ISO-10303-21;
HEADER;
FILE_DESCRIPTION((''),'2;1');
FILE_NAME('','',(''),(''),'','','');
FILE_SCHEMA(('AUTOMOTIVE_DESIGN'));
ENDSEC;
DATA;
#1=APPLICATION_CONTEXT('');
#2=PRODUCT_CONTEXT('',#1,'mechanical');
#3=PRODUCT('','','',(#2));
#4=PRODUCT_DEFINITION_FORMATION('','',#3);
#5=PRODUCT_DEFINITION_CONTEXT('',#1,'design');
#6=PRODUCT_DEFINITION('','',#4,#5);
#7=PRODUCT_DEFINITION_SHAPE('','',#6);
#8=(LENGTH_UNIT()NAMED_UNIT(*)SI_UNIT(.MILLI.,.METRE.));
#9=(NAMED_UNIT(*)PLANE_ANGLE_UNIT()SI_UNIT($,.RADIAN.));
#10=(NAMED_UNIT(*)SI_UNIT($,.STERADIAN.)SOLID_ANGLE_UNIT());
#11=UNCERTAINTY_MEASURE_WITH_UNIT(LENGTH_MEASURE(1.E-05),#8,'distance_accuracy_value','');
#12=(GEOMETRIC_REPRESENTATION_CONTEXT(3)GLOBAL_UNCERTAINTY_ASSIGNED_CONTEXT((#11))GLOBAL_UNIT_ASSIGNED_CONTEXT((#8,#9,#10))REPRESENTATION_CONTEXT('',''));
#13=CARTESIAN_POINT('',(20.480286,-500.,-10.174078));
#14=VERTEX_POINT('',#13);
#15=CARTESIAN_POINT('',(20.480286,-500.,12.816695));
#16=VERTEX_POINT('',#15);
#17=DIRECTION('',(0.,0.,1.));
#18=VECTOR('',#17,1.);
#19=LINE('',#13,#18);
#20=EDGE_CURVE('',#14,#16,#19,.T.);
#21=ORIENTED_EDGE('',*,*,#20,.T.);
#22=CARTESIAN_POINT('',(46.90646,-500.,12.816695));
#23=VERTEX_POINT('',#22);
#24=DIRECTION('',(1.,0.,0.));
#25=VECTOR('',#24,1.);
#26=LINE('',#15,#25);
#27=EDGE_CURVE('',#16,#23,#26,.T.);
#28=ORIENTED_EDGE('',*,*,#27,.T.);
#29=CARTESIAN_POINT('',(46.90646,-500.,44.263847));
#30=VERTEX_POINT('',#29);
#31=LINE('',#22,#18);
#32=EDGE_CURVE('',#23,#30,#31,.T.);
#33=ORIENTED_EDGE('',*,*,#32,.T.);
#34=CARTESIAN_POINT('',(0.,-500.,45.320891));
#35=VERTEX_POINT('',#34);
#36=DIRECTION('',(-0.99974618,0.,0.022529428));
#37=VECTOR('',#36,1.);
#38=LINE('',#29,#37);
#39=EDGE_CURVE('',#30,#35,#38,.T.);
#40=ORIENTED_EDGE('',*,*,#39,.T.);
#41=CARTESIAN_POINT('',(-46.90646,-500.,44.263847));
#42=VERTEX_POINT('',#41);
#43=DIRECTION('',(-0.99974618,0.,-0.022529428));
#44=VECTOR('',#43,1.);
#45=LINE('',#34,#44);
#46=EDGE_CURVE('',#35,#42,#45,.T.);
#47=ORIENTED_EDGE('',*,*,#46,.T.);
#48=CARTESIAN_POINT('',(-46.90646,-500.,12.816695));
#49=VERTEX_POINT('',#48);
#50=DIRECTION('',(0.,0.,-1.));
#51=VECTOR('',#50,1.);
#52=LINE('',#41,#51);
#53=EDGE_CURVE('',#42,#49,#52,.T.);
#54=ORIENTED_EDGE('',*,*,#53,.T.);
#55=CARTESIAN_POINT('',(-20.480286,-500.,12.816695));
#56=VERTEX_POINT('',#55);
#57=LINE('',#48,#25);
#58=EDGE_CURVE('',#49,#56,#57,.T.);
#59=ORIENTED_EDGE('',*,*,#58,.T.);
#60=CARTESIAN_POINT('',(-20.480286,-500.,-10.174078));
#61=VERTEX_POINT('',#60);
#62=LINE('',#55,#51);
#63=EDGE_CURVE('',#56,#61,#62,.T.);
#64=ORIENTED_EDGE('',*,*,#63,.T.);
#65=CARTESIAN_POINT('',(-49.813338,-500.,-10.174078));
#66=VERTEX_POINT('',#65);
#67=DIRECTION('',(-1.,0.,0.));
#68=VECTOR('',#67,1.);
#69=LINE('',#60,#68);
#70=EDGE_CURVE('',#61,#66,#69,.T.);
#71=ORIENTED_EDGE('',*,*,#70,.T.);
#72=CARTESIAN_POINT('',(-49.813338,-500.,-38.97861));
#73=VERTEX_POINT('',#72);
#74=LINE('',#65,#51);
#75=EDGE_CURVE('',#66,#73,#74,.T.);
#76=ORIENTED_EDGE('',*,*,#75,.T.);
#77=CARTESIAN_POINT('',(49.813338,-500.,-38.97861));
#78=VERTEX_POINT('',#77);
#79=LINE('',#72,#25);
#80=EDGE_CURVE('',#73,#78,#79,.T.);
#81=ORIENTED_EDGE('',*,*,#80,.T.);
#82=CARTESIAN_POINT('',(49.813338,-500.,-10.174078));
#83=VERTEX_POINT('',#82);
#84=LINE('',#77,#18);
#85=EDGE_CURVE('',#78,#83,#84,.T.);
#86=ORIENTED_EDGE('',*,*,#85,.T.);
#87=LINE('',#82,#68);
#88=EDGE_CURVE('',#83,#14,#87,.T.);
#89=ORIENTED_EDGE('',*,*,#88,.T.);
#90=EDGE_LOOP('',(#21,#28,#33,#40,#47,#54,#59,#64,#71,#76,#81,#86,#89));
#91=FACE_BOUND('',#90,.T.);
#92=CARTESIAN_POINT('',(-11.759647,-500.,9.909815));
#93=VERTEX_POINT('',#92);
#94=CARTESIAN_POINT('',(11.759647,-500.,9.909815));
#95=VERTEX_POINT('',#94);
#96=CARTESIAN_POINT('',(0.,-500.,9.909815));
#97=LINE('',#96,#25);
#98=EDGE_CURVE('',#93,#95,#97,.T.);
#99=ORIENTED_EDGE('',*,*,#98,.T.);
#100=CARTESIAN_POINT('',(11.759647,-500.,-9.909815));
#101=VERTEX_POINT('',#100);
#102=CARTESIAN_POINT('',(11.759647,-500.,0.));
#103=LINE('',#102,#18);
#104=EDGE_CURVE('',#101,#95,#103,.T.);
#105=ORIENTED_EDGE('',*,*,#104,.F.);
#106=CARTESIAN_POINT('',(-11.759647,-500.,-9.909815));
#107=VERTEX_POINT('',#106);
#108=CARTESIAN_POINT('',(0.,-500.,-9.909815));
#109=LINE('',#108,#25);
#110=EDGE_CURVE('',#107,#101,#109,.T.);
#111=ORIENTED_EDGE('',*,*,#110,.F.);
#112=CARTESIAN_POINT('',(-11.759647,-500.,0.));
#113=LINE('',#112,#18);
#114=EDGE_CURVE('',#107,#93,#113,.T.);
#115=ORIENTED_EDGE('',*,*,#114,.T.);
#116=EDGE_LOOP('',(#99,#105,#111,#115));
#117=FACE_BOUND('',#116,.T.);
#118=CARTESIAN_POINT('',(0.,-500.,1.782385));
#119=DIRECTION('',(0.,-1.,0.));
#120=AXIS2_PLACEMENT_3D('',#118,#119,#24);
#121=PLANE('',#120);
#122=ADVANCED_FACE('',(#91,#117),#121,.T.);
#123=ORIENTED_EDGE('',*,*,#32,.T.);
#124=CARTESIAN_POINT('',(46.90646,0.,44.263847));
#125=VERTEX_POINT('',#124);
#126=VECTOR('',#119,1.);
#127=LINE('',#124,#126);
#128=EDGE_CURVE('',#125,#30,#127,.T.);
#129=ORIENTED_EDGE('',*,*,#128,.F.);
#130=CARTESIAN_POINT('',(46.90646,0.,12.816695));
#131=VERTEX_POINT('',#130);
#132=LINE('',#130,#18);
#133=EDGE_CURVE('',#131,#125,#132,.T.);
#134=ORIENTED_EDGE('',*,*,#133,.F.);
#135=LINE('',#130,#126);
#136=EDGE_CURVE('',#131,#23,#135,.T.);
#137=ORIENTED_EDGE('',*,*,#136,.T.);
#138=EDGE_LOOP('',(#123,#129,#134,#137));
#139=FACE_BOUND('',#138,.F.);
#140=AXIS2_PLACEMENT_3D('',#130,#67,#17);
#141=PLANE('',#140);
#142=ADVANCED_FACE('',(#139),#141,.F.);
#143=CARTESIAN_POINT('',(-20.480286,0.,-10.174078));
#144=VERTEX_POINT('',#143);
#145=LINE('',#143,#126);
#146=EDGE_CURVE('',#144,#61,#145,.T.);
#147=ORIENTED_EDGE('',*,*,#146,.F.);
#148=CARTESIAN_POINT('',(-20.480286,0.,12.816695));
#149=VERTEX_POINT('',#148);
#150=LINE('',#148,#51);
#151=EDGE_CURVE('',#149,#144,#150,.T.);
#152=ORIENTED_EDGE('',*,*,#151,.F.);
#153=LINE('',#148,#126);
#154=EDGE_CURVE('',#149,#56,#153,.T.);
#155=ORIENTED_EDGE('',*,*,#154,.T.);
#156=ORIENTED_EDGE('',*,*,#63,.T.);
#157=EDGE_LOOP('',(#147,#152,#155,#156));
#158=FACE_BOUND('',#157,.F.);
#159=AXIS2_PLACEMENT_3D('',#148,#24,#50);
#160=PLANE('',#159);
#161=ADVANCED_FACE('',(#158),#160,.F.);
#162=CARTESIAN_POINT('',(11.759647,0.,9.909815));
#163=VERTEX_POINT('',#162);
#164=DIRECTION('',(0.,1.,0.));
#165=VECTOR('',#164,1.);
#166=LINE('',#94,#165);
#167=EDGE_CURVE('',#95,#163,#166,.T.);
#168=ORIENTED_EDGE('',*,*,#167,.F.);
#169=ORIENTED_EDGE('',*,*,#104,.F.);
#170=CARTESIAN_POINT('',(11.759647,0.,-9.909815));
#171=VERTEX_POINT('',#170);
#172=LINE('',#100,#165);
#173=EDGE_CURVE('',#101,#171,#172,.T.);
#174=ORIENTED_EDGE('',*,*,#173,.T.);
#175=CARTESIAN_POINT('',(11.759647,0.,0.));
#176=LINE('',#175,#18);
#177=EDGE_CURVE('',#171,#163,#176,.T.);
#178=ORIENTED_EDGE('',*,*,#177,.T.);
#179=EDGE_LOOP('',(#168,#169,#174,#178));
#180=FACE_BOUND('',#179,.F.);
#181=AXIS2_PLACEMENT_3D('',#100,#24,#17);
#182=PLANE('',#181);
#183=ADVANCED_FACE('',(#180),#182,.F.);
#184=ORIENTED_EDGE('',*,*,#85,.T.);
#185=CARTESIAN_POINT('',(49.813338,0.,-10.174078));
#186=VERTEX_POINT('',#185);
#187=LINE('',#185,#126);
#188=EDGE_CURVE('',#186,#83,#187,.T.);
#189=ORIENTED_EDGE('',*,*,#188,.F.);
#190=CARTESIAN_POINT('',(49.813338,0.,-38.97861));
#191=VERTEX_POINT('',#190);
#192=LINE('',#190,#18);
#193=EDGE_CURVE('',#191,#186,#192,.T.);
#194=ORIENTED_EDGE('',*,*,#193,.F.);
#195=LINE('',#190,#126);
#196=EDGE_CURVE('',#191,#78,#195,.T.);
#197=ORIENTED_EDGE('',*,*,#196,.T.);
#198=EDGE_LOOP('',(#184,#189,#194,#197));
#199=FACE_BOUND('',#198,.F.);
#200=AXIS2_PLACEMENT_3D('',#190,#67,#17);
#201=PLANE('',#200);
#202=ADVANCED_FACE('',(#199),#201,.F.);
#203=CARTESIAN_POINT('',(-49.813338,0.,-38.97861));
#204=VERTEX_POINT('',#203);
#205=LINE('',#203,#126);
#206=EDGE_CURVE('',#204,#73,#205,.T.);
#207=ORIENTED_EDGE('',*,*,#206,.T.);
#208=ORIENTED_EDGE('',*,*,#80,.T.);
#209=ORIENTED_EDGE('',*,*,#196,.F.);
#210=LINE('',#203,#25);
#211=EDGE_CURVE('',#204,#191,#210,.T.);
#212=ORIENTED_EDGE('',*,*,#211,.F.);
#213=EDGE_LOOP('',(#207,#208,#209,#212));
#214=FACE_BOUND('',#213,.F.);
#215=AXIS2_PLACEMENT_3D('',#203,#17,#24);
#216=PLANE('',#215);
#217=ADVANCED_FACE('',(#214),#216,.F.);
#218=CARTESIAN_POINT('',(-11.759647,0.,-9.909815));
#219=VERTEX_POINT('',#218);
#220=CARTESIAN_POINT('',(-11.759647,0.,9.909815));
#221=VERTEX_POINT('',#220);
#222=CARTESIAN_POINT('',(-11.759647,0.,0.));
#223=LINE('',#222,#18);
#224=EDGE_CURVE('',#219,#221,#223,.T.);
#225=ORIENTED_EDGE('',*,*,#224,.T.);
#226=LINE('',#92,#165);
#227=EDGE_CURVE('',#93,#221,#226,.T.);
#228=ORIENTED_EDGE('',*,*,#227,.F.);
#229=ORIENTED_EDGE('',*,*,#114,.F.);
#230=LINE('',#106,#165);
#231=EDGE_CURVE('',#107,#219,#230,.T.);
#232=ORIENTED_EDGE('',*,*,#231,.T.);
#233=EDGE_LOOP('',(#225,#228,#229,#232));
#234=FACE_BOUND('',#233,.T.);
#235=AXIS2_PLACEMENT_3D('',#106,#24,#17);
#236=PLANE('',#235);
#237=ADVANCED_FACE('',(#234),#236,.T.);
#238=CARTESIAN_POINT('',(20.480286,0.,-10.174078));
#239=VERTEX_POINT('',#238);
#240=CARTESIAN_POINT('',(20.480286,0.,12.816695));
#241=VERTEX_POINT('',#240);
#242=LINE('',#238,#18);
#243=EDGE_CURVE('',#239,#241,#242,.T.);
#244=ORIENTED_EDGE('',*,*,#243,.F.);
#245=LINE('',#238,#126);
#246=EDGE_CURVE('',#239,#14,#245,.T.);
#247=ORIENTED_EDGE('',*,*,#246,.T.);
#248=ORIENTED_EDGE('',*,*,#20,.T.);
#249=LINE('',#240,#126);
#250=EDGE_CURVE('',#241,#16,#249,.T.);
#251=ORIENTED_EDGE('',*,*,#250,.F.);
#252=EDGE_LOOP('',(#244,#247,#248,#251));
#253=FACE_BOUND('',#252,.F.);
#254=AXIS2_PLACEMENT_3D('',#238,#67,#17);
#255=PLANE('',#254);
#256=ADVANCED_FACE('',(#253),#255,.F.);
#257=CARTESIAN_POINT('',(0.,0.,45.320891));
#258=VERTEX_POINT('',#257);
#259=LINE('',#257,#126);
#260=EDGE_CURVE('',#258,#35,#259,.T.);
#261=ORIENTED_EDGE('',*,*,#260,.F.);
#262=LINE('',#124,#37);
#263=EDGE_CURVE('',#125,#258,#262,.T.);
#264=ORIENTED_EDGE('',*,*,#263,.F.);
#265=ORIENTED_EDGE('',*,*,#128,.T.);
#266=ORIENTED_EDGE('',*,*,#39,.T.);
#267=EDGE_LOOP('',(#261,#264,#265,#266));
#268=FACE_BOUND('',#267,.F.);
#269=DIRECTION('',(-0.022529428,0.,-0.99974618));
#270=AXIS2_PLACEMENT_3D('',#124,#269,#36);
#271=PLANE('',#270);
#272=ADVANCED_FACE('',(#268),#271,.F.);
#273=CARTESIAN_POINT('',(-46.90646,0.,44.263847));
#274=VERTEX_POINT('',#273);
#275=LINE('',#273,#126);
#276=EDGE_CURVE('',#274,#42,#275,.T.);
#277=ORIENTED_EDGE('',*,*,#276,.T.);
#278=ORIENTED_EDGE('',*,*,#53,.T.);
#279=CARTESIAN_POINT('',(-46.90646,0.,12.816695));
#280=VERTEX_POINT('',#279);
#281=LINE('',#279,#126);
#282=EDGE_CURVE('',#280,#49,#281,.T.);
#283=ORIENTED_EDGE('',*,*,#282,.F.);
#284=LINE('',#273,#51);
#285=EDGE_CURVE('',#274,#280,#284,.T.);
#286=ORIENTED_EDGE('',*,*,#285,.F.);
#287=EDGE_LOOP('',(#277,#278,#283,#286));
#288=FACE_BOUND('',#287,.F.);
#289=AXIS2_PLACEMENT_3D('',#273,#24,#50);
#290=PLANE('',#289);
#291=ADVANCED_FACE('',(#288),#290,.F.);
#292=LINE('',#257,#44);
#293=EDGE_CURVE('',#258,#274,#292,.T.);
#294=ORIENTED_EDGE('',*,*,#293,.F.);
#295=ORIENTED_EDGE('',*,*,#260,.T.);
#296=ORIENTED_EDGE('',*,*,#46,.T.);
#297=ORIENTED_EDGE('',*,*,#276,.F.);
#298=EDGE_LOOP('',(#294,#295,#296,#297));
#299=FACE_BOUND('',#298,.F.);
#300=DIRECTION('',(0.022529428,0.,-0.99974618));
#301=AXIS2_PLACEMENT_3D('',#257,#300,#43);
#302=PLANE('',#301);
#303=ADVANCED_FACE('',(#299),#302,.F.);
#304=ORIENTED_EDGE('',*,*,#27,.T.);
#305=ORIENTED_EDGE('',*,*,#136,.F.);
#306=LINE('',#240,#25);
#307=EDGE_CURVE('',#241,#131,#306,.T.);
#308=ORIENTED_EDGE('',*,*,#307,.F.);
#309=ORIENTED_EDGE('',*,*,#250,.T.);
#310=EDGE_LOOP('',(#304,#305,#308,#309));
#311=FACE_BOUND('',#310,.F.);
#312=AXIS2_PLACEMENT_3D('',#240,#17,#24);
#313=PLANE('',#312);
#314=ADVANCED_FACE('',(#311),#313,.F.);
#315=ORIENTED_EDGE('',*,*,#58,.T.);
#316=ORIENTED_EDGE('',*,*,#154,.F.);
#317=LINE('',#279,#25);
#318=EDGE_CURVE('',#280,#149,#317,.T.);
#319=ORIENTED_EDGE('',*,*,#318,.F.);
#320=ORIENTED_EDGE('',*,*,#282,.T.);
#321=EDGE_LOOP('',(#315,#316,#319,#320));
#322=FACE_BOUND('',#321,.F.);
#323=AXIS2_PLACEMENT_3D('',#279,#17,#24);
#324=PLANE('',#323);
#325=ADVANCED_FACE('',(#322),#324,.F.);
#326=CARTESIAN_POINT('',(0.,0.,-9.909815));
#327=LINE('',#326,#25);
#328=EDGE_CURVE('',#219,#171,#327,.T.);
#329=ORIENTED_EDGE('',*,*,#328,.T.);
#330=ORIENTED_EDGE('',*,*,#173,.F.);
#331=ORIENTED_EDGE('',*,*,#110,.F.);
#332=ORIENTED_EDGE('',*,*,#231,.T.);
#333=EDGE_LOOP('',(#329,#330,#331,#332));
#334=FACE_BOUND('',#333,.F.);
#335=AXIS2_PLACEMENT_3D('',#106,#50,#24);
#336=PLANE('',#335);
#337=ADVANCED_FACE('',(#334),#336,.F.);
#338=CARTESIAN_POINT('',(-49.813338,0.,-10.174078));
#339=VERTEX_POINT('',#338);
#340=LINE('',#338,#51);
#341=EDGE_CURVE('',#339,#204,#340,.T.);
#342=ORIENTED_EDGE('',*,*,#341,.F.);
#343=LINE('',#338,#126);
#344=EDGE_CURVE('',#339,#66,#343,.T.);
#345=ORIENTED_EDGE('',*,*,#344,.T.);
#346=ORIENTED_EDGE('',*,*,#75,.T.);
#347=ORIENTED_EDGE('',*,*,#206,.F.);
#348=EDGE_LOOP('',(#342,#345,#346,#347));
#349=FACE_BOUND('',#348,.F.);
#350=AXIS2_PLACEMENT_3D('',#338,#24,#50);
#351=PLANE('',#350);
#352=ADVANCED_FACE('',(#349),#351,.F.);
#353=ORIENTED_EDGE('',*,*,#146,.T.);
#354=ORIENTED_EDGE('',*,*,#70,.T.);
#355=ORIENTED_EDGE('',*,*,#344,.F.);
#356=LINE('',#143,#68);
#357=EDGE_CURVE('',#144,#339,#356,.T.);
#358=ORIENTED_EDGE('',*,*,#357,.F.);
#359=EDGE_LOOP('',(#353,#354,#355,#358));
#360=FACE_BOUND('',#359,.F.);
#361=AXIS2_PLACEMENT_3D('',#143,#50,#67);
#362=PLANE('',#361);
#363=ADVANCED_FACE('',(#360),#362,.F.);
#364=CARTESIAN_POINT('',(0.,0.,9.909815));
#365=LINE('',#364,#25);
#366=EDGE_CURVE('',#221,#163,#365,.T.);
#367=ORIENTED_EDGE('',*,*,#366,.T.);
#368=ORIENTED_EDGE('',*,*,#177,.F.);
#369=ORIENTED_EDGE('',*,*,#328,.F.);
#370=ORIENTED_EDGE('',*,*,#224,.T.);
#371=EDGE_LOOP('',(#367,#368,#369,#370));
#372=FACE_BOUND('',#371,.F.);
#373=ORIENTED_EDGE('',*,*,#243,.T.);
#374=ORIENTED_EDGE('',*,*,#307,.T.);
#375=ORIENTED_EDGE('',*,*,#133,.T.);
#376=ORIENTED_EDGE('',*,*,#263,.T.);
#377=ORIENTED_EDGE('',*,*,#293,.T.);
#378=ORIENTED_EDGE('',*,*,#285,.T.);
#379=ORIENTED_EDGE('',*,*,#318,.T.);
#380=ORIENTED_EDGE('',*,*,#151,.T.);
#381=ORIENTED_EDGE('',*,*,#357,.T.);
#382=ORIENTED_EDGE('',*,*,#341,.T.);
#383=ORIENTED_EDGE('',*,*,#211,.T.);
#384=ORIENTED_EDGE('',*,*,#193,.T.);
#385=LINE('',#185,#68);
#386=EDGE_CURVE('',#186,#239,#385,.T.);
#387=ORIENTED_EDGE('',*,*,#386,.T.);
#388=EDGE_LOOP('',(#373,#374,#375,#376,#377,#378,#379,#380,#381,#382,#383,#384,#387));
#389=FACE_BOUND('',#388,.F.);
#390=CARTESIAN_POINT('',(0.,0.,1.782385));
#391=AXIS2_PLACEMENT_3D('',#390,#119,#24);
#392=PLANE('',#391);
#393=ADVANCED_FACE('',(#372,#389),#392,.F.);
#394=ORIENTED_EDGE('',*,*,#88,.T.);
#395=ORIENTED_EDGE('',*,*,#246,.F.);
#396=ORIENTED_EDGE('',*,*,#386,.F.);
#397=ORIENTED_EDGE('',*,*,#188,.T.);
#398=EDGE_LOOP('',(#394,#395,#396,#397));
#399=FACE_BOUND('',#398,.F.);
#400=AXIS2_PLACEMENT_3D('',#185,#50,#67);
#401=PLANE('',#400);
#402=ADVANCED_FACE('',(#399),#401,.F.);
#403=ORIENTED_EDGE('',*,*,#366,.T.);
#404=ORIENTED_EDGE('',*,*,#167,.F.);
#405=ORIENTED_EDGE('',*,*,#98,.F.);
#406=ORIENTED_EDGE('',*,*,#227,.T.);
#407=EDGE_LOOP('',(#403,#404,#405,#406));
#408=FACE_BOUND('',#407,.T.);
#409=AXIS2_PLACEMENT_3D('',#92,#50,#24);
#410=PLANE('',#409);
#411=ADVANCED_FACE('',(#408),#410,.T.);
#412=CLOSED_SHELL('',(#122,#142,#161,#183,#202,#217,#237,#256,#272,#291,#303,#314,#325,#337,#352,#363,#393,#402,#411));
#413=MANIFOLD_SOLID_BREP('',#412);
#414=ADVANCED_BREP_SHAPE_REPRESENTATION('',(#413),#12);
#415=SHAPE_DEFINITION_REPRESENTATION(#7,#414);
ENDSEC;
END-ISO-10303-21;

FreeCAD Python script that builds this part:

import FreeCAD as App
import Part
import Sketcher
from FreeCAD import Vector
Q = App.Units.Quantity


def add_polygon(sketch, points):
    """Adds a closed chain of lines whose ends are joined by coincident constraints."""
    first, n = sketch.GeometryCount, len(points)
    for a, b in zip(points, points[1:] + points[:1]):
        sketch.addGeometry(Part.LineSegment(App.Vector(*a, 0), App.Vector(*b, 0)), False)
    for i in range(n):
        sketch.addConstraint(Sketcher.Constraint("Coincident", first + i, 2, first + (i + 1) % n, 1))

doc = App.newDocument("Part")
body = doc.addObject("PartDesign::Body", "Body")

# Sketch on XZ plane
sketch1 = body.newObject("Sketcher::SketchObject", "Sketch")
sketch1.AttachmentSupport = (doc.getObject("XZ_Plane"), [""])
sketch1.MapMode = "FlatFace"
add_polygon(sketch1, [(-50, -39), (50, -39), (50, -10), (20, -10), (20, 13), (47, 13), (47, 44), (0, 45), (-47, 44), (-47, 13), (-20, 13), (-20, -10), (-50, -10)])  # lines 0-12
sketch1.addConstraint(Sketcher.Constraint("Horizontal", 0))
sketch1.addConstraint(Sketcher.Constraint("Vertical", 1))
sketch1.addConstraint(Sketcher.Constraint("Horizontal", 2))
sketch1.addConstraint(Sketcher.Constraint("Vertical", 3))
sketch1.addConstraint(Sketcher.Constraint("Horizontal", 4))
sketch1.addConstraint(Sketcher.Constraint("Vertical", 5))
sketch1.addConstraint(Sketcher.Constraint("Vertical", 8))
sketch1.addConstraint(Sketcher.Constraint("Horizontal", 9))
sketch1.addConstraint(Sketcher.Constraint("Vertical", 10))
sketch1.addConstraint(Sketcher.Constraint("Horizontal", 11))
sketch1.addConstraint(Sketcher.Constraint("Vertical", 12))
sketch1.addConstraint(Sketcher.Constraint("Symmetric", 5, 2, 7, 2, -2))
sketch1.addConstraint(Sketcher.Constraint("Symmetric", 3, 2, 9, 2, -2))
sketch1.addConstraint(Sketcher.Constraint("Symmetric", 1, 2, 11, 2, -2))
sketch1.addConstraint(Sketcher.Constraint("PointOnObject", 6, 2, -2))
sketch1.addConstraint(Sketcher.Constraint("DistanceY", 5, 1, 5, 2, Q("31.447152 mm")))
sketch1.addConstraint(Sketcher.Constraint("Distance", 6, Q("46.918369 mm")))
sketch1.addConstraint(Sketcher.Constraint("DistanceX", 0, 1, 0, 2, Q("99.626676 mm")))
sketch1.addConstraint(Sketcher.Constraint("DistanceX", 2, 2, 2, 1, Q("29.333052 mm")))
sketch1.addConstraint(Sketcher.Constraint("DistanceX", 4, 1, 4, 2, Q("26.426174 mm")))
sketch1.addConstraint(Sketcher.Constraint("DistanceY", 1, 1, 1, 2, Q("28.804532 mm")))
sketch1.addConstraint(Sketcher.Constraint("DistanceY", 3, 1, 3, 2, Q("22.990773 mm")))
sketch1.addConstraint(Sketcher.Constraint("DistanceY", 0, 2, -1, 1, Q("38.97861 mm")))
pad1 = body.newObject("PartDesign::Pad", "Pad")
pad1.Profile = sketch1
pad1.Length = 500

# Sketch on XZ plane
sketch2 = body.newObject("Sketcher::SketchObject", "Sketch001")
sketch2.AttachmentSupport = (doc.getObject("XZ_Plane"), [""])
sketch2.MapMode = "FlatFace"
sketch2.AttachmentOffset = App.Placement(Vector(0, 0, 500), App.Rotation())
add_polygon(sketch2, [(-12, 10), (-12, -10), (12, -10), (12, 10)])  # lines 0-3
sketch2.addConstraint(Sketcher.Constraint("Vertical", 0))
sketch2.addConstraint(Sketcher.Constraint("Horizontal", 1))
sketch2.addConstraint(Sketcher.Constraint("Vertical", 2))
sketch2.addConstraint(Sketcher.Constraint("Horizontal", 3))
sketch2.addConstraint(Sketcher.Constraint("Symmetric", 0, 2, 2, 2, -1, 1))
sketch2.addConstraint(Sketcher.Constraint("DistanceY", 0, 2, 0, 1, Q("19.81963 mm")))
sketch2.addConstraint(Sketcher.Constraint("DistanceX", 1, 1, 1, 2, Q("23.519294 mm")))
pocket1 = body.newObject("PartDesign::Pocket", "Pocket")
pocket1.Profile = sketch2
pocket1.Length = 500

doc.recompute()
